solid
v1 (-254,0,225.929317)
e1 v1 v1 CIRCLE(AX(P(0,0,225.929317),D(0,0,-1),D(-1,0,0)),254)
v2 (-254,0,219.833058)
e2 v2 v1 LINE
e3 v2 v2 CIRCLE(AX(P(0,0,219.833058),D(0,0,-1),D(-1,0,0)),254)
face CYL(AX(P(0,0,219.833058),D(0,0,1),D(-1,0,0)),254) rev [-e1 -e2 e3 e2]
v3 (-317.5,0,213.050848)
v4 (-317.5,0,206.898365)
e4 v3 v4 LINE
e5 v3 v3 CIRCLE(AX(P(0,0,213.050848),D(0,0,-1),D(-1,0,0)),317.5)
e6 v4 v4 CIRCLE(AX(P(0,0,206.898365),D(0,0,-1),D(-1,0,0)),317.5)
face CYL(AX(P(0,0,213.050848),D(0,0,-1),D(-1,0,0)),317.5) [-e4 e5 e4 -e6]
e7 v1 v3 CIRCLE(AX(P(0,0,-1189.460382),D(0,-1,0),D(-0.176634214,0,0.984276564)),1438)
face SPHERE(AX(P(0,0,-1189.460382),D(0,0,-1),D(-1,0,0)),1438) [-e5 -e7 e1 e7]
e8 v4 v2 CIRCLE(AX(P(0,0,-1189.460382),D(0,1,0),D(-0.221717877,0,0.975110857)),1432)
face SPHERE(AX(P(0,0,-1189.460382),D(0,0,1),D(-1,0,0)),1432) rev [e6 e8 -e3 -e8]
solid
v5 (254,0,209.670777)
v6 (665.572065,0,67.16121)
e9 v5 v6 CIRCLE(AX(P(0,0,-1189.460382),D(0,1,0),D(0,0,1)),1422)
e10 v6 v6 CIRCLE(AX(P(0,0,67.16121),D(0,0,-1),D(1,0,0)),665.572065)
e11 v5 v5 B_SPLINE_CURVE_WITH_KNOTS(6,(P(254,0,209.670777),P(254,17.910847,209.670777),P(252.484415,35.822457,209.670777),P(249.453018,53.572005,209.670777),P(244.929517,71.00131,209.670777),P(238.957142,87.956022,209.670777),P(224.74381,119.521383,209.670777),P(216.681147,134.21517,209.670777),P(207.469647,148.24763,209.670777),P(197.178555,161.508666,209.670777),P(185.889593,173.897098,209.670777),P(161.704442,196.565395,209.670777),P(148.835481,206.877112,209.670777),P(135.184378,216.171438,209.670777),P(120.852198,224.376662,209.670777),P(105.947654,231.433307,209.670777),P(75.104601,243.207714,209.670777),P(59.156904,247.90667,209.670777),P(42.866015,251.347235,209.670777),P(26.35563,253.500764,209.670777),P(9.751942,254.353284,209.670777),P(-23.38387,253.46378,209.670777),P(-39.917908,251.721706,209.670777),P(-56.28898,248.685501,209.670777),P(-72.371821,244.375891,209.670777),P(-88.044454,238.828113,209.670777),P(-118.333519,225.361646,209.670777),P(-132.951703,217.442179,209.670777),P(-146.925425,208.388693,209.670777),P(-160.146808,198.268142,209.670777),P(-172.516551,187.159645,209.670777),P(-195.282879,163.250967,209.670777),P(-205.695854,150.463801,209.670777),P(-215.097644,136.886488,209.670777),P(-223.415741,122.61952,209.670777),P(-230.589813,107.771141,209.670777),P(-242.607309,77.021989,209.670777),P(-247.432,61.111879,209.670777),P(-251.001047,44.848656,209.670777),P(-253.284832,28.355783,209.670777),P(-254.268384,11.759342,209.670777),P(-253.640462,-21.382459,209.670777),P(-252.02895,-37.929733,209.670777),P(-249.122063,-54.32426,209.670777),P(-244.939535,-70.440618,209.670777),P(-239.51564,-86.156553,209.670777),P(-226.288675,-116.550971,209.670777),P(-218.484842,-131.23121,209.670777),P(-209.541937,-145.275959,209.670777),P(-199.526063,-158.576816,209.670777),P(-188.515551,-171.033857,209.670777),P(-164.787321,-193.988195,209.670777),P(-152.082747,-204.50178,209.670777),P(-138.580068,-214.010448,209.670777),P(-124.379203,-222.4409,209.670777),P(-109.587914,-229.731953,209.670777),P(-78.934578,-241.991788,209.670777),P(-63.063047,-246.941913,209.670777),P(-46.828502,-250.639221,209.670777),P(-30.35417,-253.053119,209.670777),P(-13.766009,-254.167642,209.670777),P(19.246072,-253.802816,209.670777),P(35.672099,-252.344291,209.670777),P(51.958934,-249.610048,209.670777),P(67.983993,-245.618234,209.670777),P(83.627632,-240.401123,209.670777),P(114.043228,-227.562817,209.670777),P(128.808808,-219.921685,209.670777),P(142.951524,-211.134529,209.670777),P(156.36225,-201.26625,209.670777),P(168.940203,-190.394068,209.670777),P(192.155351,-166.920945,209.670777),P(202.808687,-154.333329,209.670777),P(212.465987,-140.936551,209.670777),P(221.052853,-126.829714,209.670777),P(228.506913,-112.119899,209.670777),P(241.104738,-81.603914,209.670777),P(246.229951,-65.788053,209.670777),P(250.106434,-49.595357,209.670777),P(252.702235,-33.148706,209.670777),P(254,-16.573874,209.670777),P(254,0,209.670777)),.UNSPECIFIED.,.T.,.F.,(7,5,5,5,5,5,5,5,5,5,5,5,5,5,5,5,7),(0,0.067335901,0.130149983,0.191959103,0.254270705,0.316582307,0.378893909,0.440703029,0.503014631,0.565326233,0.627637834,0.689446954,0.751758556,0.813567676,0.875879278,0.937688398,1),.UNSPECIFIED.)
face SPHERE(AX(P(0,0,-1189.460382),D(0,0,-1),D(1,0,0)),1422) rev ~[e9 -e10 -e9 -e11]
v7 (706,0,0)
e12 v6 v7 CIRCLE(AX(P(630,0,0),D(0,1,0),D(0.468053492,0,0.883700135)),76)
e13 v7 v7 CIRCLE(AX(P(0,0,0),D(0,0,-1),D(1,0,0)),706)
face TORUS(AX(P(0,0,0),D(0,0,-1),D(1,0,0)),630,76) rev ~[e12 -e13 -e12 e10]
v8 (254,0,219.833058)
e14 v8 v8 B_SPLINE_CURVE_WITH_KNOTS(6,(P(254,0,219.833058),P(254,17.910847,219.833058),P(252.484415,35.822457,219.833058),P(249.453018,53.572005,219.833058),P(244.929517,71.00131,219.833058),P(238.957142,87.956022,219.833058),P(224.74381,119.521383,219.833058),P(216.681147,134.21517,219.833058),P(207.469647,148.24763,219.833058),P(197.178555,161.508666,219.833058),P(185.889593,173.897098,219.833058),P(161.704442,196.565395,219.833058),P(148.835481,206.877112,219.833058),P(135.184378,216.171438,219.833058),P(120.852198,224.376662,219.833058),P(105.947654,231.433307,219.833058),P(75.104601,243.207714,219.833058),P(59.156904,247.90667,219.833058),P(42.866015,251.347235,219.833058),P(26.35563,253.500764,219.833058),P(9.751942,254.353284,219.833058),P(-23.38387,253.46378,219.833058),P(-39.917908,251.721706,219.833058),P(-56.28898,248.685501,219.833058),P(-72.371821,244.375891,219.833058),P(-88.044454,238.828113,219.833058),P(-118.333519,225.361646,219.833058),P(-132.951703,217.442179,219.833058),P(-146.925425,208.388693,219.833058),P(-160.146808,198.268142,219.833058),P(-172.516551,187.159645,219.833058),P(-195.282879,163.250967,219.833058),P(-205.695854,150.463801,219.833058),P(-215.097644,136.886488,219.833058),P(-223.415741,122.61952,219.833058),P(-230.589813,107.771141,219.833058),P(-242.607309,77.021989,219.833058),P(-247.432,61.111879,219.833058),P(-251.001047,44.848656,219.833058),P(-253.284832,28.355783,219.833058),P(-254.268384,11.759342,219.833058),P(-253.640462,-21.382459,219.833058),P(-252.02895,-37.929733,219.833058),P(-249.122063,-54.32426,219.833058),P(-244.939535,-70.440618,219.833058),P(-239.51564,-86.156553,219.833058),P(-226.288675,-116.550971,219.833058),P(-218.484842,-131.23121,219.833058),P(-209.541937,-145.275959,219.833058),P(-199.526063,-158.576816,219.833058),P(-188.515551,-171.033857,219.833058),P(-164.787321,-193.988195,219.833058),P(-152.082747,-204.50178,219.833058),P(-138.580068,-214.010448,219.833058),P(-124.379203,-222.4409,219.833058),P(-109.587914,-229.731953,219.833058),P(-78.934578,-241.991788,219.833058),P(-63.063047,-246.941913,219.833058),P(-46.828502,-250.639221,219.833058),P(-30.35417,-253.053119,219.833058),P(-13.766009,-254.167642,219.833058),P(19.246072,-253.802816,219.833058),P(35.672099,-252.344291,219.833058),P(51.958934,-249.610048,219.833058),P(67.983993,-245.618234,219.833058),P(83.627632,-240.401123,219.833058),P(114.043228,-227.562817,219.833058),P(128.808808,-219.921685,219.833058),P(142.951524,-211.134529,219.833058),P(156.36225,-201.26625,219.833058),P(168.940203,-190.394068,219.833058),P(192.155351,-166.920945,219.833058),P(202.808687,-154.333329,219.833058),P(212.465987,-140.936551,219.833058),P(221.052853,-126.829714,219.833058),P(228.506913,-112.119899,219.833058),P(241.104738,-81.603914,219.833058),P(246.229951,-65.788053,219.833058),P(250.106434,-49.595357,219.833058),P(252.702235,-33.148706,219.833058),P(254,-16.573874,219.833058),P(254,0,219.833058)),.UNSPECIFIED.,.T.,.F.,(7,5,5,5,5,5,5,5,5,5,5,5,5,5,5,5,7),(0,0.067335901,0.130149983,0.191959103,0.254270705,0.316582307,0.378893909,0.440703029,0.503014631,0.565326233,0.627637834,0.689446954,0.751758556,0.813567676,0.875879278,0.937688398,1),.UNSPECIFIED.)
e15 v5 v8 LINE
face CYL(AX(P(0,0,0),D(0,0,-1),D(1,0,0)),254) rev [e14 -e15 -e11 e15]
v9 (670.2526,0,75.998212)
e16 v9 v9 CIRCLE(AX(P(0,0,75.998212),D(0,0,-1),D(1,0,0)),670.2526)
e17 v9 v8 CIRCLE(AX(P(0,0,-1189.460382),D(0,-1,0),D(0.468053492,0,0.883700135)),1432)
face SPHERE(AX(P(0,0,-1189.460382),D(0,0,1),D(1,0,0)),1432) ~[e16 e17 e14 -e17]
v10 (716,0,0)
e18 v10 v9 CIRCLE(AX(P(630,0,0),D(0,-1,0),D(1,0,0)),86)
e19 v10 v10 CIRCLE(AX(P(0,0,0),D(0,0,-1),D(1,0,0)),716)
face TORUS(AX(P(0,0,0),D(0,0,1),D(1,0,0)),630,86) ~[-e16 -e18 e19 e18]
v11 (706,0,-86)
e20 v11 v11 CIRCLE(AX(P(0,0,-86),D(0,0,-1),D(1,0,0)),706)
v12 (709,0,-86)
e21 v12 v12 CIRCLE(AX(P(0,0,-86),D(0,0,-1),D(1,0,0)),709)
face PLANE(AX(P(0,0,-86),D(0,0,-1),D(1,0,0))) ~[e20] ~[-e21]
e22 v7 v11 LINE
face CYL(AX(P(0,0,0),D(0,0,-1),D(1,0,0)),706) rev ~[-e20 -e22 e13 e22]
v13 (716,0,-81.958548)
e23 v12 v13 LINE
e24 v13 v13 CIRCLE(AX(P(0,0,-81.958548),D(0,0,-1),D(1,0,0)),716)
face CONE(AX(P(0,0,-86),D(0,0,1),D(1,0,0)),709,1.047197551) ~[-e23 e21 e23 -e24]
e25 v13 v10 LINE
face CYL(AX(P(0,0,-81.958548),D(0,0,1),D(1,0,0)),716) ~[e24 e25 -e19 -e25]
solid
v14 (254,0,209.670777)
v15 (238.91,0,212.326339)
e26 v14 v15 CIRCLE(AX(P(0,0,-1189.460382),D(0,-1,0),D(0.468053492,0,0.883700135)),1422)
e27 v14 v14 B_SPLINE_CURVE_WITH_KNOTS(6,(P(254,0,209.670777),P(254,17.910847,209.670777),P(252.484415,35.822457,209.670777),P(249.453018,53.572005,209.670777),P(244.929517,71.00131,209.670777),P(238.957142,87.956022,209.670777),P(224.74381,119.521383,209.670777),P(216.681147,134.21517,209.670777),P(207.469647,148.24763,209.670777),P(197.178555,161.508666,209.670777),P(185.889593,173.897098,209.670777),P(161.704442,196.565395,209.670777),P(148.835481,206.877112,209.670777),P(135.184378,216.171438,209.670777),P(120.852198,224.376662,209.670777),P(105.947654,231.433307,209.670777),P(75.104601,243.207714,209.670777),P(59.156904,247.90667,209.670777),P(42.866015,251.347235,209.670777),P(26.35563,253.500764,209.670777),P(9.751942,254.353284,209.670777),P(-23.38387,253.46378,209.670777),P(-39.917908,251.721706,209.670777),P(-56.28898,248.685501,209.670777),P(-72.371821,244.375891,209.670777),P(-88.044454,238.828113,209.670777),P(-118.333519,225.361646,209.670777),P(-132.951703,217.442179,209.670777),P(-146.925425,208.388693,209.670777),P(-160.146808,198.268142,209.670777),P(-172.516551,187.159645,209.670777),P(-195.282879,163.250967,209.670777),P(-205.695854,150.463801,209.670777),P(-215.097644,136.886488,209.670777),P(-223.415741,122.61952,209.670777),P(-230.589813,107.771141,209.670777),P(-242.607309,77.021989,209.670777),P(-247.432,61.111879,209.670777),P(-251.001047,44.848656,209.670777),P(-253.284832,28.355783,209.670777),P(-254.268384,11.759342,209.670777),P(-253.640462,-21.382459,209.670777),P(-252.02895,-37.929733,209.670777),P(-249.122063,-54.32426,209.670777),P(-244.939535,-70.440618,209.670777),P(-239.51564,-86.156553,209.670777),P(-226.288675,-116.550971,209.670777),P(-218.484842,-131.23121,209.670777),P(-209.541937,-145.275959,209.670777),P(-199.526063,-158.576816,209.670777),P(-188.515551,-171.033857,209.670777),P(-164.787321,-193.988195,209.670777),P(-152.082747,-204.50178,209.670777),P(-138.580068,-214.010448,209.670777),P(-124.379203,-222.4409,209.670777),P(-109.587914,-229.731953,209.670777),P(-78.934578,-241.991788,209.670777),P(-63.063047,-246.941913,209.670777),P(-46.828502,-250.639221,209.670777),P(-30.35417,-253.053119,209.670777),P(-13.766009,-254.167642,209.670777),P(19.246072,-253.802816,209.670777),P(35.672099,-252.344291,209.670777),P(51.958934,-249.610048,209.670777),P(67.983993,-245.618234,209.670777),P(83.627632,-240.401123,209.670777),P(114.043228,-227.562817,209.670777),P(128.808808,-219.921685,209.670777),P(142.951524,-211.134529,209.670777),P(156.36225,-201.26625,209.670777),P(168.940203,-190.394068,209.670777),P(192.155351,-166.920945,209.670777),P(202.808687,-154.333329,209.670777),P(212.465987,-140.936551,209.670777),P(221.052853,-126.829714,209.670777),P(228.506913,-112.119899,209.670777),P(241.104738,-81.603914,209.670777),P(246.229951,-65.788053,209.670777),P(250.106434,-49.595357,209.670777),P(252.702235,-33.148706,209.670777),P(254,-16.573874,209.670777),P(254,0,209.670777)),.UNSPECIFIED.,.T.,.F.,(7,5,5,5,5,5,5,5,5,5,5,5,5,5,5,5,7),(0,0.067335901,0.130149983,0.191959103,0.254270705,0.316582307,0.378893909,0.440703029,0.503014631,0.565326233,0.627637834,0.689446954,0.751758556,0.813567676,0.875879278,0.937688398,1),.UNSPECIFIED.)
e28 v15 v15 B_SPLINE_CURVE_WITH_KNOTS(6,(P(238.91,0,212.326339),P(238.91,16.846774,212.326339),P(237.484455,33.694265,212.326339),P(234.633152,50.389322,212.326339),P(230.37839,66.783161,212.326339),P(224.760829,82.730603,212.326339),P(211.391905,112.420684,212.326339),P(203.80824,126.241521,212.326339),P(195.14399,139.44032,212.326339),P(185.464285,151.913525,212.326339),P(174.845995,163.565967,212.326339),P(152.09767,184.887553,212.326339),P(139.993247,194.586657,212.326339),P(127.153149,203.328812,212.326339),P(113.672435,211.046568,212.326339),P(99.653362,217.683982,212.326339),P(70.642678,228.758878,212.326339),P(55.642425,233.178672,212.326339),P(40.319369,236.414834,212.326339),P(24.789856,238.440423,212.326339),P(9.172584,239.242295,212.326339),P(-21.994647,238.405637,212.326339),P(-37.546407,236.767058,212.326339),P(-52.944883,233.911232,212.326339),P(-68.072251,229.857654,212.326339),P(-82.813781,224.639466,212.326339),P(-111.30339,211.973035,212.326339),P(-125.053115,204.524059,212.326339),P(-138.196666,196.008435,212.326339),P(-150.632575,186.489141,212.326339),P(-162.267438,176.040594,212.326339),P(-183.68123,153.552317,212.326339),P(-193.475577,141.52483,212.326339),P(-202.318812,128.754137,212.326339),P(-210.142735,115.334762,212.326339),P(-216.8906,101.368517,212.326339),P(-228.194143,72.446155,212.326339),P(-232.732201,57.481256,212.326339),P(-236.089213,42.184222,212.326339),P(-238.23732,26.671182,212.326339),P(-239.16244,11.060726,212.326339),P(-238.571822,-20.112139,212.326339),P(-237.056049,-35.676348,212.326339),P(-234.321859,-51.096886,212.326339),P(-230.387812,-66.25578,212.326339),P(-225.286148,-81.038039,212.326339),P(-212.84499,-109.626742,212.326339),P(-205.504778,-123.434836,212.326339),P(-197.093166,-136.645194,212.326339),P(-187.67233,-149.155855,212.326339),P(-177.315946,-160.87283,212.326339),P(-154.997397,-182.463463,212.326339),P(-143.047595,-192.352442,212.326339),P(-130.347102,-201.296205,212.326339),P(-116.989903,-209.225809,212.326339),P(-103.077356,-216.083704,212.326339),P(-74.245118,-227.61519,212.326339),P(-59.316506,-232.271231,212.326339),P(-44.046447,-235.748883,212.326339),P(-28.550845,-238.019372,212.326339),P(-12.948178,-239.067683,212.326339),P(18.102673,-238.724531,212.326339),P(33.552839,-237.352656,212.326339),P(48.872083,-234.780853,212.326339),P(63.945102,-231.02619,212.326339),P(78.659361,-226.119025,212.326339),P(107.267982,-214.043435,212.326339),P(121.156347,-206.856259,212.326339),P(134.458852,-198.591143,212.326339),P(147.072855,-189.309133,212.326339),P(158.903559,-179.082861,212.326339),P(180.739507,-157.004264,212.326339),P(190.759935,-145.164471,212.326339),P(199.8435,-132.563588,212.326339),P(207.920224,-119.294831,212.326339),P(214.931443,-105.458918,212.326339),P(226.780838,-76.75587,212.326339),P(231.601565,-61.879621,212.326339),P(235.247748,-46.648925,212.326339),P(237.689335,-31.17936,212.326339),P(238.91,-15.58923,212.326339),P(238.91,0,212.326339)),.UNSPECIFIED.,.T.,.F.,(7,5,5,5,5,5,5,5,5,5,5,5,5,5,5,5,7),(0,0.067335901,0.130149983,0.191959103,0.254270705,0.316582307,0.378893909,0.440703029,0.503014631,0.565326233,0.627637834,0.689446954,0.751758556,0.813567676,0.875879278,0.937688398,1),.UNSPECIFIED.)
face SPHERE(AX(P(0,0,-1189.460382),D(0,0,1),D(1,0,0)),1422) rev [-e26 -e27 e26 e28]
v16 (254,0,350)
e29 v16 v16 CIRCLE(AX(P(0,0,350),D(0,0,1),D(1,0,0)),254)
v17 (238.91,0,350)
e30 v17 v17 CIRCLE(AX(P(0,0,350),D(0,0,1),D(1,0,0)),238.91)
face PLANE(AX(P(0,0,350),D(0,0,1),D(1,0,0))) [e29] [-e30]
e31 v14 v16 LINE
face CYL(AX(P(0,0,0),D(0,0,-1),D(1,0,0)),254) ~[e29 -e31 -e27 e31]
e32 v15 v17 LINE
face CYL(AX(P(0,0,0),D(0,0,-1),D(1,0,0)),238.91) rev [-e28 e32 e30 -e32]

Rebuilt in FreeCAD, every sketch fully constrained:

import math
import FreeCAD as App
import Part
import Sketcher

V = App.Vector
Q = App.Units.Quantity

doc = App.newDocument("Part")
params = doc.addObject("Spreadsheet::Sheet", "Params")
for row, (alias, value) in enumerate([
    ("sketch1_radius", "86 mm"),
    ("sketch1_radius2", "1432 mm"),
    ("sketch1_radius3", "1422 mm"),
    ("sketch1_width", "3 mm"),
    ("sketch1_height", "86 mm"),
    ("revolution_angle", "360 deg"),
    ("sketch2_diameter", "508 mm"),
    ("sketch3_radius", "1432 mm"),
    ("sketch3_radius2", "1438 mm"),
    ("revolution2_angle", "360 deg"),
    ("sketch4_diameter", "508 mm"),
    ("sketch4_diameter2", "477.82 mm"),
    ("pad1_length", "350 mm"),
    ("sketch5_radius", "1422 mm"),
    ("sketch5_radius2", "76 mm"),
    ("sketch5_width", "706 mm"),
    ("groove_angle", "360 deg"),
], start=1):
    params.set(f"A{row}", alias)
    params.set(f"B{row}", "=" + value)
    params.setAlias(f"B{row}", alias)

body = doc.addObject("PartDesign::Body", "Body")

# Sketch on XZ plane
sketch1 = body.newObject("Sketcher::SketchObject", "Sketch")
sketch1.AttachmentSupport = (doc.getObject("XZ_Plane"), [""])
sketch1.MapMode = "FlatFace"
sketch1.addGeometry([
    Part.LineSegment(V(716, -82, 0), V(716, 0, 0)),  # 0
    Part.ArcOfCircle(Part.Circle(V(630, 0, 0), V(0, 0, 1), 86), math.radians(0), math.radians(62)),  # 1
    Part.ArcOfCircle(Part.Circle(V(0, -1189.5, 0), V(0, 0, 1), 1432), math.radians(62), math.radians(90)),  # 2
    Part.LineSegment(V(0, 242.5, 0), V(0, 232.5, 0)),  # 3
    Part.ArcOfCircle(Part.Circle(V(0, -1189.5, 0), V(0, 0, 1), 1422), math.radians(62), math.radians(90)),  # 4
    Part.ArcOfCircle(Part.Circle(V(630, 0, 0), V(0, 0, 1), 76), math.radians(0), math.radians(62)),  # 5
    Part.LineSegment(V(706, 0, 0), V(706, -86, 0)),  # 6
    Part.LineSegment(V(706, -86, 0), V(709, -86, 0)),  # 7
    Part.LineSegment(V(709, -86, 0), V(716, -82, 0)),  # 8
], False)
sketch1.addConstraint([
    Sketcher.Constraint("Tangent", 0, 2, 1, 1),
    Sketcher.Constraint("Tangent", 1, 2, 2, 1),
    Sketcher.Constraint("Coincident", 2, 2, 3, 1),
    Sketcher.Constraint("Coincident", 3, 2, 4, 2),
    Sketcher.Constraint("Tangent", 4, 1, 5, 2),
    Sketcher.Constraint("Tangent", 5, 1, 6, 1),
    Sketcher.Constraint("Coincident", 6, 2, 7, 1),
    Sketcher.Constraint("Coincident", 7, 2, 8, 1),
    Sketcher.Constraint("Coincident", 8, 2, 0, 1),
    Sketcher.Constraint("Vertical", 0),
    Sketcher.Constraint("Vertical", 3),
    Sketcher.Constraint("Vertical", 6),
    Sketcher.Constraint("Horizontal", 7),
    Sketcher.Constraint("Coincident", 4, 3, 2, 3),
    Sketcher.Constraint("Coincident", 5, 3, 1, 3),
    Sketcher.Constraint("PointOnObject", 1, 3, -1),
    Sketcher.Constraint("PointOnObject", 2, 3, -2),
    Sketcher.Constraint("PointOnObject", 3, 2, -2),
    Sketcher.Constraint("Radius", 1, 86.0),
    Sketcher.Constraint("Radius", 2, 1432.0),
    Sketcher.Constraint("Radius", 4, 1422.0),
    Sketcher.Constraint("DistanceX", 7, 1, 7, 2, 3.0),
    Sketcher.Constraint("DistanceY", 6, 2, 6, 1, 86.0),
    Sketcher.Constraint("Angle", 8, Q("30 deg")),
    Sketcher.Constraint("DistanceX", -1, 1, 1, 3, 630.0),
])
sketch1.setExpression("Constraints[18]", "Params.sketch1_radius")
sketch1.setExpression("Constraints[19]", "Params.sketch1_radius2")
sketch1.setExpression("Constraints[20]", "Params.sketch1_radius3")
sketch1.setExpression("Constraints[21]", "Params.sketch1_width")
sketch1.setExpression("Constraints[22]", "Params.sketch1_height")
revolution = body.newObject("PartDesign::Revolution", "Revolution")
revolution.Profile = sketch1
revolution.ReferenceAxis = (sketch1, ["V_Axis"])
revolution.setExpression("Angle", "Params.revolution_angle")

# Sketch on XY plane
sketch2 = body.newObject("Sketcher::SketchObject", "Sketch001")
sketch2.AttachmentSupport = (doc.getObject("XY_Plane"), [""])
sketch2.MapMode = "FlatFace"
sketch2.addGeometry(Part.Circle(V(0, 0, 0), V(0, 0, 1), 254), False)
sketch2.addConstraint([
    Sketcher.Constraint("Coincident", 0, 3, -1, 1),
    Sketcher.Constraint("Diameter", 0, 508.0),
])
sketch2.setExpression("Constraints[1]", "Params.sketch2_diameter")
pocket1 = body.newObject("PartDesign::Pocket", "Pocket")
pocket1.Profile = sketch2
pocket1.Type = "ThroughAll"
pocket1.Reversed = True
body2 = doc.addObject("PartDesign::Body", "Body001")

# Sketch on XZ plane
sketch3 = body2.newObject("Sketcher::SketchObject", "Sketch002")
sketch3.AttachmentSupport = (doc.getObject("XZ_Plane001"), [""])
sketch3.MapMode = "FlatFace"
sketch3.addGeometry([
    Part.ArcOfCircle(Part.Circle(V(0, -1189, 0), V(0, 0, 1), 1432), math.radians(100.22), math.radians(102.81)),
    Part.LineSegment(V(-254, 220, 0), V(-254, 226, 0)),
    Part.ArcOfCircle(Part.Circle(V(0, -1189, 0), V(0, 0, 1), 1438), math.radians(100.17), math.radians(102.76)),
    Part.LineSegment(V(-318, 213, 0), V(-318, 207, 0)),
], False)
sketch3.addConstraint([
    Sketcher.Constraint("Coincident", 0, 1, 1, 1),
    Sketcher.Constraint("Coincident", 1, 2, 2, 1),
    Sketcher.Constraint("Coincident", 2, 2, 3, 1),
    Sketcher.Constraint("Coincident", 3, 2, 0, 2),
    Sketcher.Constraint("Vertical", 1),
    Sketcher.Constraint("Vertical", 3),
    Sketcher.Constraint("Coincident", 2, 3, 0, 3),
    Sketcher.Constraint("PointOnObject", 0, 3, -2),
    Sketcher.Constraint("Radius", 0, 1432.0),
    Sketcher.Constraint("Radius", 2, 1438.0),
    Sketcher.Constraint("DistanceX", 1, 2, -1, 1, 254.0),
    Sketcher.Constraint("DistanceX", 3, 2, -1, 1, 317.5),
    Sketcher.Constraint("DistanceY", 0, 3, -1, 1, 1189.460382),
])
sketch3.setExpression("Constraints[8]", "Params.sketch3_radius")
sketch3.setExpression("Constraints[9]", "Params.sketch3_radius2")
revolution2 = body2.newObject("PartDesign::Revolution", "Revolution001")
revolution2.Profile = sketch3
revolution2.ReferenceAxis = (sketch3, ["V_Axis"])
revolution2.setExpression("Angle", "Params.revolution2_angle")
body3 = doc.addObject("PartDesign::Body", "Body002")

# Sketch on XY plane
sketch4 = body3.newObject("Sketcher::SketchObject", "Sketch003")
sketch4.AttachmentSupport = (doc.getObject("XY_Plane002"), [""])
sketch4.MapMode = "FlatFace"
sketch4.addGeometry([
    Part.Circle(V(0, 0, 0), V(0, 0, 1), 254),
    Part.Circle(V(0, 0, 0), V(0, 0, 1), 239),
], False)
sketch4.addConstraint([
    Sketcher.Constraint("Coincident", 0, 3, -1, 1),
    Sketcher.Constraint("Coincident", 1, 3, -1, 1),
    Sketcher.Constraint("Diameter", 0, 508.0),
    Sketcher.Constraint("Diameter", 1, 477.82),
])
sketch4.setExpression("Constraints[2]", "Params.sketch4_diameter")
sketch4.setExpression("Constraints[3]", "Params.sketch4_diameter2")
pad1 = body3.newObject("PartDesign::Pad", "Pad")
pad1.Profile = sketch4
pad1.setExpression("Length", "Params.pad1_length")

# Sketch on XZ plane
sketch5 = body3.newObject("Sketcher::SketchObject", "Sketch004")
sketch5.AttachmentSupport = (doc.getObject("XZ_Plane002"), [""])
sketch5.MapMode = "FlatFace"
sketch5.addGeometry([
    Part.ArcOfCircle(Part.Circle(V(0, -1189, 0), V(0, 0, 1), 1422), math.radians(62), math.radians(90)),
    Part.LineSegment(V(0, 233, 0), V(0, 0, 0)),
    Part.LineSegment(V(0, 0, 0), V(706, 0, 0)),
    Part.ArcOfCircle(Part.Circle(V(630, 0, 0), V(0, 0, 1), 76), math.radians(0), math.radians(62)),
], False)
sketch5.addConstraint([
    Sketcher.Constraint("Coincident", 0, 2, 1, 1),
    Sketcher.Constraint("Coincident", 1, 2, 2, 1),
    Sketcher.Constraint("Coincident", 2, 2, 3, 1),
    Sketcher.Constraint("Tangent", 3, 2, 0, 1),
    Sketcher.Constraint("Vertical", 1),
    Sketcher.Constraint("Horizontal", 2),
    Sketcher.Constraint("Coincident", 1, 2, -1, 1),
    Sketcher.Constraint("PointOnObject", 0, 3, -2),
    Sketcher.Constraint("PointOnObject", 3, 3, -1),
    Sketcher.Constraint("Radius", 0, 1422.0),
    Sketcher.Constraint("Radius", 3, 76.0),
    Sketcher.Constraint("DistanceX", 2, 1, 2, 2, 706.0),
])
sketch5.setExpression("Constraints[9]", "Params.sketch5_radius")
sketch5.setExpression("Constraints[10]", "Params.sketch5_radius2")
sketch5.setExpression("Constraints[11]", "Params.sketch5_width")
groove = body3.newObject("PartDesign::Groove", "Groove")
groove.Profile = sketch5
groove.ReferenceAxis = (sketch5, ["V_Axis"])
groove.setExpression("Angle", "Params.groove_angle")

doc.recompute()
